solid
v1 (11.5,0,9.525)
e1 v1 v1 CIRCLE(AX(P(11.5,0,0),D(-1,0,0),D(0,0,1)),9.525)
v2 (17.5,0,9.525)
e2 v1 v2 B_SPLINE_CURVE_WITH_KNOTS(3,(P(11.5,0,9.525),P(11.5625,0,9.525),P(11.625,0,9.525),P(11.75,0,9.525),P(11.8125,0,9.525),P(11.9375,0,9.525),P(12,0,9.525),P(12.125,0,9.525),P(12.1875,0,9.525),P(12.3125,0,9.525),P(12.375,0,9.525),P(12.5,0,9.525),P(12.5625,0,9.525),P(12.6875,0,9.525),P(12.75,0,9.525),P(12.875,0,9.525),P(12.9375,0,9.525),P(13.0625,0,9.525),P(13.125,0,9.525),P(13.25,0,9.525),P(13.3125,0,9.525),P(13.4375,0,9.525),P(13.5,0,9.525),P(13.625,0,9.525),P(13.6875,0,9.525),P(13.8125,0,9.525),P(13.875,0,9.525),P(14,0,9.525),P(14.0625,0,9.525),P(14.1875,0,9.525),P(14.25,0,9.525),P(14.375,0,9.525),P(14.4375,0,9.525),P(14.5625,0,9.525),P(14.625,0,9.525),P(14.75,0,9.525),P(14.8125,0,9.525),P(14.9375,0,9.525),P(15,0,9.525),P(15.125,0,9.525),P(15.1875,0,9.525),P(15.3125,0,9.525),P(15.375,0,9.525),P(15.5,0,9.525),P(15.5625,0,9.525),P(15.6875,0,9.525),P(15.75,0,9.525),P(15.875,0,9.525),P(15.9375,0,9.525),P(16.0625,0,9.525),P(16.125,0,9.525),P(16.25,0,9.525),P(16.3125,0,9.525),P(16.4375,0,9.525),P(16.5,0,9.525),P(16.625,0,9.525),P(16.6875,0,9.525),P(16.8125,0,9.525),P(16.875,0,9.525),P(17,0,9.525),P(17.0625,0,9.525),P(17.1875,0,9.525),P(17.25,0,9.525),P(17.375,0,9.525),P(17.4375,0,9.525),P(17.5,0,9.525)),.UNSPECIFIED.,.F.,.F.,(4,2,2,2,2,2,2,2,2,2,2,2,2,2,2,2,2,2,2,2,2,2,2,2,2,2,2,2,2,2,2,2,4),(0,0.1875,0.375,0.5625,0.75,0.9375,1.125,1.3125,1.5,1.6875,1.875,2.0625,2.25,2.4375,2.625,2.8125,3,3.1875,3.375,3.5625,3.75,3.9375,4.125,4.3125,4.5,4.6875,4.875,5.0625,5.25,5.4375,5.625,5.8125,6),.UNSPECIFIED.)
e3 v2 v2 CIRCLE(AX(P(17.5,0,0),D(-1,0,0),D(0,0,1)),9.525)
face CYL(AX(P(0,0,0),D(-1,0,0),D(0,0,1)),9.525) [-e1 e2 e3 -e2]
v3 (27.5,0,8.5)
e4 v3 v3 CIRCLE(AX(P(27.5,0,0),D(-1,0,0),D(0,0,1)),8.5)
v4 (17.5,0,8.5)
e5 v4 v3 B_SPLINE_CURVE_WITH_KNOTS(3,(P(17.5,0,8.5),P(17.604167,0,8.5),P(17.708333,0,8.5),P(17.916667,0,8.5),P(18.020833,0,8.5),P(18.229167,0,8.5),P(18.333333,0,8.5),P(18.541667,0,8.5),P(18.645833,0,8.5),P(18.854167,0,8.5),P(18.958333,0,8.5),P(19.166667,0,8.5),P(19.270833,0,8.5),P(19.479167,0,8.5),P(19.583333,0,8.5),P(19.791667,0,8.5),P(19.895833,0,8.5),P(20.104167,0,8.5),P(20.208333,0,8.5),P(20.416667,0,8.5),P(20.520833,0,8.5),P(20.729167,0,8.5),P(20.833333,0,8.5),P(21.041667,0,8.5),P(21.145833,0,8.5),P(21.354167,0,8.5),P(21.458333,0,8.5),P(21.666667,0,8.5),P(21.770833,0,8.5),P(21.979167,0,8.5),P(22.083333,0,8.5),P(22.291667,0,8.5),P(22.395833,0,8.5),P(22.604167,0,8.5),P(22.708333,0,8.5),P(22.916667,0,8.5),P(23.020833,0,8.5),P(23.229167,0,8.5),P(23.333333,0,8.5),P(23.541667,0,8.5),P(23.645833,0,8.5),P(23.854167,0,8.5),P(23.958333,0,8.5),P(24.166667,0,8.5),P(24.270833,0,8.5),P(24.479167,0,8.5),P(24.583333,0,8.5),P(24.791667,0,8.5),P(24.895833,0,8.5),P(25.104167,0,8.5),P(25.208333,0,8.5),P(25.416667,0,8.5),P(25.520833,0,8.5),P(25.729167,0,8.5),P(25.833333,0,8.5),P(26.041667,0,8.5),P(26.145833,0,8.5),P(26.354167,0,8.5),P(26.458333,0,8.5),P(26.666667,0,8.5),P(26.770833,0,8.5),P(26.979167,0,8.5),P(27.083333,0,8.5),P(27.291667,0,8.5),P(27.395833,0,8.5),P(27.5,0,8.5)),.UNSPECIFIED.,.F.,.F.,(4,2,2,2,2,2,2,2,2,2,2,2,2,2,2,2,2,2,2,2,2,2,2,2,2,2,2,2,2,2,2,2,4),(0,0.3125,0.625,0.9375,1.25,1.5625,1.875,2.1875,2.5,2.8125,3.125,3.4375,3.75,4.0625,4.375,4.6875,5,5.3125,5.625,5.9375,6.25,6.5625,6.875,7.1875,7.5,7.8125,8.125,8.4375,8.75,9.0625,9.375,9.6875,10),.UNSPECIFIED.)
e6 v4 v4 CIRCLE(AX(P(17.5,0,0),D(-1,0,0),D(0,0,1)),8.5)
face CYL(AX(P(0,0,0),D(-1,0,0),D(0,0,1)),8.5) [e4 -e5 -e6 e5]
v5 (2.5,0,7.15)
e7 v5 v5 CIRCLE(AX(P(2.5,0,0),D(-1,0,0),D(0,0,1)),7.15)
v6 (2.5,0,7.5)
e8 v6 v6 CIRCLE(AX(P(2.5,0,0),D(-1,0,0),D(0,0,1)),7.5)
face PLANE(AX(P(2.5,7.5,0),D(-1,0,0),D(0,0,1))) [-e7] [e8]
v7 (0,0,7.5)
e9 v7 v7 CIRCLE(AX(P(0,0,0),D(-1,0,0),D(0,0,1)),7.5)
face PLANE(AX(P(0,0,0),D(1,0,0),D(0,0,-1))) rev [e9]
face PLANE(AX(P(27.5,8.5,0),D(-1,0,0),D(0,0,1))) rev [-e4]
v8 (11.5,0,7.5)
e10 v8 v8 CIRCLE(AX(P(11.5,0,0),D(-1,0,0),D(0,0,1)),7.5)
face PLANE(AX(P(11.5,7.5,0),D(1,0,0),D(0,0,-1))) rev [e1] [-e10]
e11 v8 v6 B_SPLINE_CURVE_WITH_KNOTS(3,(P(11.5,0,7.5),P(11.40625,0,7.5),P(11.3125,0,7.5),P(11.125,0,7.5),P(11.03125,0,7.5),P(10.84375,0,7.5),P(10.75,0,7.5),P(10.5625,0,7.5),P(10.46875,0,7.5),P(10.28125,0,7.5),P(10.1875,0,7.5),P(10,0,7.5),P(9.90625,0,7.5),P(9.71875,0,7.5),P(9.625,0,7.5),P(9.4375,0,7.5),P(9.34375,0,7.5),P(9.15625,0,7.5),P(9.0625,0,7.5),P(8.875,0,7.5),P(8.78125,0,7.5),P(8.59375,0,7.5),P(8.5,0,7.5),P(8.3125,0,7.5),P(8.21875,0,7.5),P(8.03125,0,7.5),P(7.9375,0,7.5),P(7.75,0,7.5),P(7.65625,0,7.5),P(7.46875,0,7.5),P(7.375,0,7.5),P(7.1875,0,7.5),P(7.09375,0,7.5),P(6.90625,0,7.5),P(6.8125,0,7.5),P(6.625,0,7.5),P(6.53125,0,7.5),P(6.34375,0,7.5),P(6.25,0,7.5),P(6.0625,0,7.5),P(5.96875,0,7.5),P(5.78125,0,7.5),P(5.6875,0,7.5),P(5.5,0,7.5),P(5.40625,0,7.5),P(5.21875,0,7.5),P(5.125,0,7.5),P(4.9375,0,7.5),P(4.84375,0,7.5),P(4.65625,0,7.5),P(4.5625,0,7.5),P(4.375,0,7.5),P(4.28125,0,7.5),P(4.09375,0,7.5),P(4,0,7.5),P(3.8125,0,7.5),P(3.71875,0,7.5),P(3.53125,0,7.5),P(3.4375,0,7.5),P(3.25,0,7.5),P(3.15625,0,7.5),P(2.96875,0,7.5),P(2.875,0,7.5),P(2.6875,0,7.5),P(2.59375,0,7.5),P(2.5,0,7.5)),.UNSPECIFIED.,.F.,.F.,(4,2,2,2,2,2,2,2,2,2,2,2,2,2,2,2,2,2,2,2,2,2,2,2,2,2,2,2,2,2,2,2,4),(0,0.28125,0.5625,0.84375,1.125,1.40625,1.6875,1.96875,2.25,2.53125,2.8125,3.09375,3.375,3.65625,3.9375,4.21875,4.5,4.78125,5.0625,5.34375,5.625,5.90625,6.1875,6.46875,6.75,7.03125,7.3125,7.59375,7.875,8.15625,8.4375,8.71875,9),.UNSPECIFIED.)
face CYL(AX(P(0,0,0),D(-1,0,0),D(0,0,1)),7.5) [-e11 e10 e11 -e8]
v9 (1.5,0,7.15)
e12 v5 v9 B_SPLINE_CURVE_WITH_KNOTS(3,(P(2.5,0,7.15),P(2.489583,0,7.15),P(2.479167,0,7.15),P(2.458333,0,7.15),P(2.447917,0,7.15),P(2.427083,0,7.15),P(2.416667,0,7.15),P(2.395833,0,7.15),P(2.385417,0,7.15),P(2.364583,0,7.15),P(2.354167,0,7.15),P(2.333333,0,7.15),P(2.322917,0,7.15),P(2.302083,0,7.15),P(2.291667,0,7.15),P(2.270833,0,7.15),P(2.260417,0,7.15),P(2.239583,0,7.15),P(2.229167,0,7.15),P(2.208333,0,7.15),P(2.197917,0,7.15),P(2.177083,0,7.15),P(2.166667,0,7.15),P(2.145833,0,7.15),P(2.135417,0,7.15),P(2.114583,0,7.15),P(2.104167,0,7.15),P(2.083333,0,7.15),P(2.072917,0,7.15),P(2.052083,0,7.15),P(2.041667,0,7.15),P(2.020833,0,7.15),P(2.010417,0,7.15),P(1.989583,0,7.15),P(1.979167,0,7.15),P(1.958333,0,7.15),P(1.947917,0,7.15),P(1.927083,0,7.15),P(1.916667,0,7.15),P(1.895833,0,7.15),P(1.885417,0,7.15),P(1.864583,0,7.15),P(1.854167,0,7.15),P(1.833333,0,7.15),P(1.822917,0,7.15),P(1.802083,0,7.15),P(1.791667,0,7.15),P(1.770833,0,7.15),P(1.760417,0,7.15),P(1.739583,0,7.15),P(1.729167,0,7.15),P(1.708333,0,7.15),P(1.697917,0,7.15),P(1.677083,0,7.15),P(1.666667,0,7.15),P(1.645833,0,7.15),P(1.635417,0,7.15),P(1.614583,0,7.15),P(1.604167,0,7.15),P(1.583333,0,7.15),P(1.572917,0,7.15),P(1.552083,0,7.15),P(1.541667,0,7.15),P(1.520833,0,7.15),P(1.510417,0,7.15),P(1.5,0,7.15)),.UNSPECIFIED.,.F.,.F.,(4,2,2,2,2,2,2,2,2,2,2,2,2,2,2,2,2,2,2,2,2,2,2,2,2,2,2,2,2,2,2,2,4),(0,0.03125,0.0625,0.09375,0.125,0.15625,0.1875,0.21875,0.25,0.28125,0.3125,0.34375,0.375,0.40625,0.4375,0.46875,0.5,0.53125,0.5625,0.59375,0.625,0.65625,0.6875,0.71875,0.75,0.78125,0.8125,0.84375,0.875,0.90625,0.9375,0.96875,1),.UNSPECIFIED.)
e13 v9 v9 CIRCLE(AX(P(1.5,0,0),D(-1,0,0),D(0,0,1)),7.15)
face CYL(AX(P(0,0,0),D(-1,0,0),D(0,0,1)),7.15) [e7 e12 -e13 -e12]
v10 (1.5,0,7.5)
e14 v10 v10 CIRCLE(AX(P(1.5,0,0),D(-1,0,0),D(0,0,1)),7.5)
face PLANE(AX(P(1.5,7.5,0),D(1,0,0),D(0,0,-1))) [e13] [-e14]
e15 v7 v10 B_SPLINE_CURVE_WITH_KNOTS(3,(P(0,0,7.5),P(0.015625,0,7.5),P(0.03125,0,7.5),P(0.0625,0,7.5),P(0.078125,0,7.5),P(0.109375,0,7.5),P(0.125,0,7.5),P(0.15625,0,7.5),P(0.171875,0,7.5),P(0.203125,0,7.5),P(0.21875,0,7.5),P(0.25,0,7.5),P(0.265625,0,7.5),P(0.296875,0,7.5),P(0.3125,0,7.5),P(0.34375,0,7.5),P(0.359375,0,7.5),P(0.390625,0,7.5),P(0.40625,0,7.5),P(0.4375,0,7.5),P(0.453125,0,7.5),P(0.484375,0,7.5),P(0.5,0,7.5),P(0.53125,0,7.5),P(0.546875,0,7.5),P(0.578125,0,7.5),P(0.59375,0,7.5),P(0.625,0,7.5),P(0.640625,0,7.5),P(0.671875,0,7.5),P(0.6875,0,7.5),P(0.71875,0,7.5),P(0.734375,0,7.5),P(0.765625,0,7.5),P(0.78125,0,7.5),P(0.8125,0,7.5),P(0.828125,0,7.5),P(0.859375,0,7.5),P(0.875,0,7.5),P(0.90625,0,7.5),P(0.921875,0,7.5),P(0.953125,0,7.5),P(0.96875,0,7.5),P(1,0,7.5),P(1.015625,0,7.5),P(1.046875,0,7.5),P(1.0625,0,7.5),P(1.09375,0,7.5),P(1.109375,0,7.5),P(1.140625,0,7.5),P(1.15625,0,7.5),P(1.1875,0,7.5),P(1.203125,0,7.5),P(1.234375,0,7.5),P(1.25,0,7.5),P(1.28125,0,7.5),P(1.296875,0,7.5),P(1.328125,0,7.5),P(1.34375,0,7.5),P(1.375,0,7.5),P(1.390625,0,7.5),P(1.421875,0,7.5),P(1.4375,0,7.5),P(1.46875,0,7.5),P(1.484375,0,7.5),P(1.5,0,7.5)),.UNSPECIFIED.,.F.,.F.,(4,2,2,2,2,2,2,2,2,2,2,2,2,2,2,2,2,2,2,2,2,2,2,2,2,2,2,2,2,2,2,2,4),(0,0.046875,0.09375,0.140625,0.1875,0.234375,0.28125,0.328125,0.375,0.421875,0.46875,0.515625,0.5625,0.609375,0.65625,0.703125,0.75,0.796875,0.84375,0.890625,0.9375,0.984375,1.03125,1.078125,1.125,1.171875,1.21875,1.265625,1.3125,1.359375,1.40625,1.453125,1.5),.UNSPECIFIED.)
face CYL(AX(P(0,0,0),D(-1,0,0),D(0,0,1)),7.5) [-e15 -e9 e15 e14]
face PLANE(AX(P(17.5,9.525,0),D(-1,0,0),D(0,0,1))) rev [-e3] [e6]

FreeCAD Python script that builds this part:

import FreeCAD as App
import Part
import Sketcher

V = App.Vector


def add_polygon(sketch, points):
    """Adds a closed chain of lines whose ends are joined by coincident constraints."""
    first, n = sketch.GeometryCount, len(points)
    for a, b in zip(points, points[1:] + points[:1]):
        sketch.addGeometry(Part.LineSegment(App.Vector(*a, 0), App.Vector(*b, 0)), False)
    for i in range(n):
        sketch.addConstraint(Sketcher.Constraint("Coincident", first + i, 2, first + (i + 1) % n, 1))

doc = App.newDocument("Part")
body = doc.addObject("PartDesign::Body", "Body")

sketch1 = body.newObject("Sketcher::SketchObject", "Sketch")
sketch1.AttachmentSupport = (doc.getObject("XY_Plane"), [""])
sketch1.MapMode = "FlatFace"
add_polygon(sketch1, [(0, 7.5), (0, 0), (27.5, 0), (27.5, 8.5), (17.5, 8.5), (17.5, 9.525), (11.5, 9.525), (11.5, 7.5)])
sketch1.addConstraint(Sketcher.Constraint("Vertical", 0))
sketch1.addConstraint(Sketcher.Constraint("Horizontal", 1))
sketch1.addConstraint(Sketcher.Constraint("Vertical", 2))
sketch1.addConstraint(Sketcher.Constraint("Horizontal", 3))
sketch1.addConstraint(Sketcher.Constraint("Vertical", 4))
sketch1.addConstraint(Sketcher.Constraint("Horizontal", 5))
sketch1.addConstraint(Sketcher.Constraint("Vertical", 6))
sketch1.addConstraint(Sketcher.Constraint("Horizontal", 7))
sketch1.addConstraint(Sketcher.Constraint("Coincident", 0, 2, -1, 1))
sketch1.addConstraint(Sketcher.Constraint("DistanceX", 3, 2, 3, 1, 10.0))
sketch1.addConstraint(Sketcher.Constraint("DistanceX", 5, 2, 5, 1, 6.0))
sketch1.addConstraint(Sketcher.Constraint("DistanceX", 1, 1, 1, 2, 27.5))
sketch1.addConstraint(Sketcher.Constraint("DistanceY", 0, 2, 0, 1, 7.5))
sketch1.addConstraint(Sketcher.Constraint("DistanceY", 2, 1, 2, 2, 8.5))
sketch1.addConstraint(Sketcher.Constraint("DistanceY", 4, 1, 4, 2, 1.025))
revolution = body.newObject("PartDesign::Revolution", "Revolution")
revolution.Profile = sketch1
revolution.ReferenceAxis = (sketch1, ["H_Axis"])
revolution.Angle = 360

sketch2 = body.newObject("Sketcher::SketchObject", "Sketch001")
sketch2.AttachmentSupport = (doc.getObject("XY_Plane"), [""])
sketch2.MapMode = "FlatFace"
add_polygon(sketch2, [(1.5, 7.5), (1.5, 7.15), (2.5, 7.15), (2.5, 7.5)])
sketch2.addConstraint(Sketcher.Constraint("Vertical", 0))
sketch2.addConstraint(Sketcher.Constraint("Horizontal", 1))
sketch2.addConstraint(Sketcher.Constraint("Vertical", 2))
sketch2.addConstraint(Sketcher.Constraint("Horizontal", 3))
sketch2.addConstraint(Sketcher.Constraint("DistanceX", 1, 1, 1, 2, 1.0))
sketch2.addConstraint(Sketcher.Constraint("DistanceY", 0, 2, 0, 1, 0.35))
sketch2.addConstraint(Sketcher.Constraint("DistanceX", -1, 1, 0, 2, 1.5))
sketch2.addConstraint(Sketcher.Constraint("DistanceY", -1, 1, 2, 2, 7.5))
groove = body.newObject("PartDesign::Groove", "Groove")
groove.Profile = sketch2
groove.ReferenceAxis = (sketch2, ["H_Axis"])
groove.Angle = 360

doc.recompute()
